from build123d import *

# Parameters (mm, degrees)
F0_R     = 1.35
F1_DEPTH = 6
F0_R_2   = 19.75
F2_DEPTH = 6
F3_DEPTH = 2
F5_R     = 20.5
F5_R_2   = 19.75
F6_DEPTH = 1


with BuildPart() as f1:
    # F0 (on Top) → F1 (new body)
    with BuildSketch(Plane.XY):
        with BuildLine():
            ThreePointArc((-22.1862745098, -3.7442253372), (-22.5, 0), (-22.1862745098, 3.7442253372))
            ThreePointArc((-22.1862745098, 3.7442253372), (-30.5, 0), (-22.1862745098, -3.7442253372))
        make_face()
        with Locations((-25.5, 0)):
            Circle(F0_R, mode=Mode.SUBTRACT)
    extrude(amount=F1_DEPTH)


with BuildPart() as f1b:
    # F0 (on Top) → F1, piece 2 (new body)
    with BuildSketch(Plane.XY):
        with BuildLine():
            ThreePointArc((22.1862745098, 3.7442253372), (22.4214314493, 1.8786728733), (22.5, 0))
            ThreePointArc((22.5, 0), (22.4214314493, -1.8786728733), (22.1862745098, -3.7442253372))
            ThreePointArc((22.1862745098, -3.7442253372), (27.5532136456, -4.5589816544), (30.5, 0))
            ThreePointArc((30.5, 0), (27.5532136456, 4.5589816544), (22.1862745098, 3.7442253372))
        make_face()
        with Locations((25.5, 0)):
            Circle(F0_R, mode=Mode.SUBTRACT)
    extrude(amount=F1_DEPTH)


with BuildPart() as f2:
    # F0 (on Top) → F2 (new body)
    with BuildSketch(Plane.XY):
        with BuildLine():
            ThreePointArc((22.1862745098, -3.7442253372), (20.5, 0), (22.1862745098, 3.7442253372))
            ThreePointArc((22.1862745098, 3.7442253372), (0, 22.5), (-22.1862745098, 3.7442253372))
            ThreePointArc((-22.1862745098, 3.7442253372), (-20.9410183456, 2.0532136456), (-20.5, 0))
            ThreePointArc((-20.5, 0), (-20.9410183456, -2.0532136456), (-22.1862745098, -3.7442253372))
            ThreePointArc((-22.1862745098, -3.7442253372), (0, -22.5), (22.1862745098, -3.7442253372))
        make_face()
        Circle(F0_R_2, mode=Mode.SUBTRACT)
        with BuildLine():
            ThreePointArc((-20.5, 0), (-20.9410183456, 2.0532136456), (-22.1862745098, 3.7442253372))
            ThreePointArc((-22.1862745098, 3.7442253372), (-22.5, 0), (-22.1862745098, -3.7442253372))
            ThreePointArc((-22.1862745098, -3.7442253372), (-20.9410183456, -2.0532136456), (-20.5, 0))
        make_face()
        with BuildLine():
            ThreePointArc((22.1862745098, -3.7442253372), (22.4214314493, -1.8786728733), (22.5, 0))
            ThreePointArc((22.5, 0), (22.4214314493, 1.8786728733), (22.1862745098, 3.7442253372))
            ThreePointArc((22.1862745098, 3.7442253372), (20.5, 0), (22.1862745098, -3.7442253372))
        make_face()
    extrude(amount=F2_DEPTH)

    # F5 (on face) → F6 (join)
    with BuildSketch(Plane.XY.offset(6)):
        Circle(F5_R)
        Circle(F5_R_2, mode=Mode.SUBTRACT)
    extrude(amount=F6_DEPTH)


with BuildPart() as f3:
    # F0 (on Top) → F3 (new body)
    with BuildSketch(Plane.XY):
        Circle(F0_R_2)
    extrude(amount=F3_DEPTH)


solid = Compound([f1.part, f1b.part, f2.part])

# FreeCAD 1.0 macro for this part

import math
import FreeCAD as App
import Part
import Sketcher
from FreeCAD import Vector
Q = App.Units.Quantity

doc = App.newDocument("Part")
params = doc.addObject("Spreadsheet::Sheet", "Params")
for row, (alias, value) in enumerate([
    ("sketch1_radius", "5 mm"),
    ("sketch1_diameter", "2.7 mm"),
    ("sketch1_radius2", "22.5 mm"),
    ("pad1_length", "6 mm"),
    ("sketch2_radius", "5 mm"),
    ("sketch2_diameter", "2.7 mm"),
    ("sketch2_radius2", "22.5 mm"),
    ("pad2_length", "6 mm"),
    ("sketch3_diameter", "39.5 mm"),
    ("sketch3_radius", "22.5 mm"),
    ("pad3_length", "6 mm"),
    ("sketch4_diameter", "41 mm"),
    ("sketch4_diameter2", "39.5 mm"),
    ("pad4_length", "1 mm"),
    ("sketch5_diameter", "39.5 mm"),
    ("pad5_length", "2 mm"),
], start=1):
    params.set(f"A{row}", alias)
    params.set(f"B{row}", "=" + value)
    params.setAlias(f"B{row}", alias)

body = doc.addObject("PartDesign::Body", "Body")

sketch1 = doc.addObject("Sketcher::SketchObject", "Sketch")
body.addObject(sketch1)
sketch1.AttachmentSupport = (doc.XY_Plane, [""])
sketch1.MapMode = "FlatFace"
sketch1.addGeometry(Part.ArcOfCircle(Part.Circle(Vector(0, 0, 0), Vector(0, 0, 1), 22.5), math.radians(170.42), math.radians(189.58)), False)
sketch1.addGeometry(Part.ArcOfCircle(Part.Circle(Vector(-25.5, 0, 0), Vector(0, 0, 1), 5), math.radians(48), math.radians(312)), False)
sketch1.addGeometry(Part.Circle(Vector(-25.5, 0, 0), Vector(0, 0, 1), 1.4), False)
sketch1.addConstraint(Sketcher.Constraint("Coincident", 0, 1, 1, 1))
sketch1.addConstraint(Sketcher.Constraint("Coincident", 1, 2, 0, 2))
sketch1.addConstraint(Sketcher.Constraint("Coincident", 0, 3, -1, 1))
sketch1.addConstraint(Sketcher.Constraint("Coincident", 2, 3, 1, 3))
sketch1.addConstraint(Sketcher.Constraint("PointOnObject", 1, 3, -1))
sketch1.addConstraint(Sketcher.Constraint("Radius", 1, Q("5 mm")))
sketch1.addConstraint(Sketcher.Constraint("Diameter", 2, Q("2.7 mm")))
sketch1.addConstraint(Sketcher.Constraint("Radius", 0, Q("22.5 mm")))
sketch1.addConstraint(Sketcher.Constraint("DistanceX", 1, 3, -1, 1, Q("25.5 mm")))
sketch1.setExpression("Constraints[5]", "Params.sketch1_radius")
sketch1.setExpression("Constraints[6]", "Params.sketch1_diameter")
sketch1.setExpression("Constraints[7]", "Params.sketch1_radius2")
pad1 = doc.addObject("PartDesign::Pad", "Pad")
body.addObject(pad1)
pad1.Profile = sketch1
pad1.setExpression("Length", "Params.pad1_length")
body2 = doc.addObject("PartDesign::Body", "Body001")

sketch2 = doc.addObject("Sketcher::SketchObject", "Sketch001")
body2.addObject(sketch2)
sketch2.AttachmentSupport = (doc.getObject("XY_Plane001"), [""])
sketch2.MapMode = "FlatFace"
sketch2.addGeometry(Part.ArcOfCircle(Part.Circle(Vector(0, 0, 0), Vector(0, 0, 1), 22.5), math.radians(0), math.radians(9.58)), False)
sketch2.addGeometry(Part.ArcOfCircle(Part.Circle(Vector(0, 0, 0), Vector(0, 0, 1), 22.5), math.radians(-9.58), math.radians(0)), False)
sketch2.addGeometry(Part.ArcOfCircle(Part.Circle(Vector(25.5, 0, 0), Vector(0, 0, 1), 5), math.radians(-132), math.radians(0)), False)
sketch2.addGeometry(Part.ArcOfCircle(Part.Circle(Vector(25.5, 0, 0), Vector(0, 0, 1), 5), math.radians(0), math.radians(132)), False)
sketch2.addGeometry(Part.Circle(Vector(25.5, 0, 0), Vector(0, 0, 1), 1.4), False)
sketch2.addConstraint(Sketcher.Constraint("Tangent", 0, 1, 1, 2))
sketch2.addConstraint(Sketcher.Constraint("Coincident", 1, 1, 2, 1))
sketch2.addConstraint(Sketcher.Constraint("Tangent", 2, 2, 3, 1))
sketch2.addConstraint(Sketcher.Constraint("Coincident", 3, 2, 0, 2))
sketch2.addConstraint(Sketcher.Constraint("Coincident", 0, 3, -1, 1))
sketch2.addConstraint(Sketcher.Constraint("Coincident", 4, 3, 2, 3))
sketch2.addConstraint(Sketcher.Constraint("Equal", 0, 1))
sketch2.addConstraint(Sketcher.Constraint("Equal", 2, 3))
sketch2.addConstraint(Sketcher.Constraint("PointOnObject", 2, 3, -1))
sketch2.addConstraint(Sketcher.Constraint("PointOnObject", 0, 1, -1))
sketch2.addConstraint(Sketcher.Constraint("PointOnObject", 2, 2, -1))
sketch2.addConstraint(Sketcher.Constraint("Radius", 2, Q("5 mm")))
sketch2.addConstraint(Sketcher.Constraint("Diameter", 4, Q("2.7 mm")))
sketch2.addConstraint(Sketcher.Constraint("Radius", 0, Q("22.5 mm")))
sketch2.addConstraint(Sketcher.Constraint("DistanceX", 0, 1, 2, 3, Q("3 mm")))
sketch2.setExpression("Constraints[11]", "Params.sketch2_radius")
sketch2.setExpression("Constraints[12]", "Params.sketch2_diameter")
sketch2.setExpression("Constraints[13]", "Params.sketch2_radius2")
pad2 = doc.addObject("PartDesign::Pad", "Pad001")
body2.addObject(pad2)
pad2.Profile = sketch2
pad2.setExpression("Length", "Params.pad2_length")
body3 = doc.addObject("PartDesign::Body", "Body002")

sketch3 = doc.addObject("Sketcher::SketchObject", "Sketch002")
body3.addObject(sketch3)
sketch3.AttachmentSupport = (doc.getObject("XY_Plane002"), [""])
sketch3.MapMode = "FlatFace"
sketch3.addGeometry(Part.ArcOfCircle(Part.Circle(Vector(0, 0, 0), Vector(0, 0, 1), 22.5), math.radians(10), math.radians(350)), False)
sketch3.addGeometry(Part.ArcOfCircle(Part.Circle(Vector(0, 0, 0), Vector(0, 0, 1), 22.5), math.radians(-9.58), math.radians(0)), False)
sketch3.addGeometry(Part.ArcOfCircle(Part.Circle(Vector(0, 0, 0), Vector(0, 0, 1), 22.5), math.radians(0), math.radians(9.58)), False)
sketch3.addGeometry(Part.Circle(Vector(0, 0, 0), Vector(0, 0, 1), 19.8), False)
sketch3.addConstraint(Sketcher.Constraint("Tangent", 0, 2, 1, 1))
sketch3.addConstraint(Sketcher.Constraint("Tangent", 1, 2, 2, 1))
sketch3.addConstraint(Sketcher.Constraint("Tangent", 2, 2, 0, 1))
sketch3.addConstraint(Sketcher.Constraint("Coincident", 0, 3, -1, 1))
sketch3.addConstraint(Sketcher.Constraint("Coincident", 3, 3, -1, 1))
sketch3.addConstraint(Sketcher.Constraint("PointOnObject", 1, 2, -1))
sketch3.addConstraint(Sketcher.Constraint("Vertical", 0, 2, 2, 2))
sketch3.addConstraint(Sketcher.Constraint("Diameter", 3, Q("39.5 mm")))
sketch3.addConstraint(Sketcher.Constraint("Radius", 0, Q("22.5 mm")))
sketch3.addConstraint(Sketcher.Constraint("DistanceY", 0, 2, 2, 2, Q("7.488451 mm")))
sketch3.setExpression("Constraints[7]", "Params.sketch3_diameter")
sketch3.setExpression("Constraints[8]", "Params.sketch3_radius")
pad3 = doc.addObject("PartDesign::Pad", "Pad002")
body3.addObject(pad3)
pad3.Profile = sketch3
pad3.setExpression("Length", "Params.pad3_length")

sketch4 = doc.addObject("Sketcher::SketchObject", "Sketch003")
body3.addObject(sketch4)
sketch4.AttachmentSupport = (doc.getObject("XY_Plane002"), [""])
sketch4.MapMode = "FlatFace"
sketch4.AttachmentOffset = App.Placement(Vector(0, 0, 6), App.Rotation())
sketch4.addGeometry(Part.Circle(Vector(0, 0, 0), Vector(0, 0, 1), 20), False)
sketch4.addGeometry(Part.Circle(Vector(0, 0, 0), Vector(0, 0, 1), 20), False)
sketch4.addConstraint(Sketcher.Constraint("Coincident", 0, 3, -1, 1))
sketch4.addConstraint(Sketcher.Constraint("Coincident", 1, 3, -1, 1))
sketch4.addConstraint(Sketcher.Constraint("Diameter", 0, Q("41 mm")))
sketch4.addConstraint(Sketcher.Constraint("Diameter", 1, Q("39.5 mm")))
sketch4.setExpression("Constraints[2]", "Params.sketch4_diameter")
sketch4.setExpression("Constraints[3]", "Params.sketch4_diameter2")
pad4 = doc.addObject("PartDesign::Pad", "Pad003")
body3.addObject(pad4)
pad4.Profile = sketch4
pad4.setExpression("Length", "Params.pad4_length")
body4 = doc.addObject("PartDesign::Body", "Body003")

sketch5 = doc.addObject("Sketcher::SketchObject", "Sketch004")
body4.addObject(sketch5)
sketch5.AttachmentSupport = (doc.getObject("XY_Plane003"), [""])
sketch5.MapMode = "FlatFace"
sketch5.addGeometry(Part.Circle(Vector(0, 0, 0), Vector(0, 0, 1), 20), False)
sketch5.addConstraint(Sketcher.Constraint("Coincident", 0, 3, -1, 1))
sketch5.addConstraint(Sketcher.Constraint("Diameter", 0, Q("39.5 mm")))
sketch5.setExpression("Constraints[1]", "Params.sketch5_diameter")
pad5 = doc.addObject("PartDesign::Pad", "Pad004")
body4.addObject(pad5)
pad5.Profile = sketch5
pad5.setExpression("Length", "Params.pad5_length")
body4.Visibility = False

doc.recompute()
